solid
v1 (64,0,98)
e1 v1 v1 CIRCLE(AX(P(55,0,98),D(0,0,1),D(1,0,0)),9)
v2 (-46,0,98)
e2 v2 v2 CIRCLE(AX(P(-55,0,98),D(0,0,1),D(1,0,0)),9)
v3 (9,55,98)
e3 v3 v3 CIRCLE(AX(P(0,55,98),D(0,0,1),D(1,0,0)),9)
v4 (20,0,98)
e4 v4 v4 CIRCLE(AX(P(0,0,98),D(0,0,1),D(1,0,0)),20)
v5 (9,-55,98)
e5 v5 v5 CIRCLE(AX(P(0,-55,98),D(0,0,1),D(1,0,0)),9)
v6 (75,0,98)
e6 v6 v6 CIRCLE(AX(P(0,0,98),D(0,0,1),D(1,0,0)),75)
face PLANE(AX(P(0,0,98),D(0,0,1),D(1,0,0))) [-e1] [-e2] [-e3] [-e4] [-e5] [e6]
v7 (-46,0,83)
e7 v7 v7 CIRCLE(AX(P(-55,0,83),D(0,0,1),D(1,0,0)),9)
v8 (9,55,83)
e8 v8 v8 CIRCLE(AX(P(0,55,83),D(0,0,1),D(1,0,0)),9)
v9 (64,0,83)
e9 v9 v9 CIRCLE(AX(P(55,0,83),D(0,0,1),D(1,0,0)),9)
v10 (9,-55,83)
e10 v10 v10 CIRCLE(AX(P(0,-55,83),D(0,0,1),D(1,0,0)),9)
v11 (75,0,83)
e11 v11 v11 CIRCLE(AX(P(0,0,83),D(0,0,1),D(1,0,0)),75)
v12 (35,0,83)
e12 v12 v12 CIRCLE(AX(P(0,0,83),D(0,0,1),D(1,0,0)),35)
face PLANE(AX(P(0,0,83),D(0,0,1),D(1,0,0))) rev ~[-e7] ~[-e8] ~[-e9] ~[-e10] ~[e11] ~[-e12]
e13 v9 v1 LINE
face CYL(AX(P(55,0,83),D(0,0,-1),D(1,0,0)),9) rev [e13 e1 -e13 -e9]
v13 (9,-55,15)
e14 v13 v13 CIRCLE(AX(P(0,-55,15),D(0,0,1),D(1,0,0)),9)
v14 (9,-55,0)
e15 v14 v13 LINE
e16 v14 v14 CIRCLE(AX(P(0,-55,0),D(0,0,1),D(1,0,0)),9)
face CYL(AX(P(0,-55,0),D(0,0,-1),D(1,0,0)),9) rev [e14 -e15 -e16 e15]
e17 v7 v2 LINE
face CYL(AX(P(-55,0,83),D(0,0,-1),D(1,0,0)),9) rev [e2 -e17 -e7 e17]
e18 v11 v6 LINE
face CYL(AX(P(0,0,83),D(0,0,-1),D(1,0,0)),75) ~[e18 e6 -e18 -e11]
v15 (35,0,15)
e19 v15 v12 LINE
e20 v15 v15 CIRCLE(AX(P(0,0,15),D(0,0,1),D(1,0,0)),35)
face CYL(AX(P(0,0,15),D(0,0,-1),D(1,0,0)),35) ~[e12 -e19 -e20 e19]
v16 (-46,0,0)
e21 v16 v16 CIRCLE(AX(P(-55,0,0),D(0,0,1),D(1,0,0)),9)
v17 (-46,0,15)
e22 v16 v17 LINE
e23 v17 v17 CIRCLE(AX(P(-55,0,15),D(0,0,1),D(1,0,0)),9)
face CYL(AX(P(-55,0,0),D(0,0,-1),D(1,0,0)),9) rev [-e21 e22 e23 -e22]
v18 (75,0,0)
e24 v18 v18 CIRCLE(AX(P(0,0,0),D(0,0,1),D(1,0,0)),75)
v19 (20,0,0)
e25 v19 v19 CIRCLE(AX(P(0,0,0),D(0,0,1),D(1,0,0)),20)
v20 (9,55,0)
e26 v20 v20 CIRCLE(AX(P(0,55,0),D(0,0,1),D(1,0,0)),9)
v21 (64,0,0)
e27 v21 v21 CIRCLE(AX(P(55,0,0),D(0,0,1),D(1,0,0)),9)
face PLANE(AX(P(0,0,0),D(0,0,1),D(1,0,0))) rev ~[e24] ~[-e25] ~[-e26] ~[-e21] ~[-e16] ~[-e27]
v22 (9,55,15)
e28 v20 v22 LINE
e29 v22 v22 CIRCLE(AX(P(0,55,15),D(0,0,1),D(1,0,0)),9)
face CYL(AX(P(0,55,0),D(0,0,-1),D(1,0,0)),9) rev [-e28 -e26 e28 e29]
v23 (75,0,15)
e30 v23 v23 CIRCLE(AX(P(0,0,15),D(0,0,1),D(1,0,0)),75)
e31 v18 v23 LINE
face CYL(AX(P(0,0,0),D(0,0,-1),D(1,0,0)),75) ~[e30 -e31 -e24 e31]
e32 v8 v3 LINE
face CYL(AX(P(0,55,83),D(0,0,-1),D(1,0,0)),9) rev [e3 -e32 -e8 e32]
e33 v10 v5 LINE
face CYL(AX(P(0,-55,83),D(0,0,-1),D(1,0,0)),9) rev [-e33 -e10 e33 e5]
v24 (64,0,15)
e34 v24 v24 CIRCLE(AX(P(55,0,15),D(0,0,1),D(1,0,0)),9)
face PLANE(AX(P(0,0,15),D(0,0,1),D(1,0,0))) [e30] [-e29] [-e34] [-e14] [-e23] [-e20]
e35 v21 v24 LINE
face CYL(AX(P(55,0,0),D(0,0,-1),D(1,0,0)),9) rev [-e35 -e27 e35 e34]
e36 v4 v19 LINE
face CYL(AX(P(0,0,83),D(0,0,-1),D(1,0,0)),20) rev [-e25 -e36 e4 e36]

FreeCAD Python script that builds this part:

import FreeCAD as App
import Part
import Sketcher

V = App.Vector
Q = App.Units.Quantity

doc = App.newDocument("Part")
params = doc.addObject("Spreadsheet::Sheet", "Params")
for row, (alias, value) in enumerate([
    ("sketch1_diameter", "150 mm"),
    ("sketch1_diameter2", "18 mm"),
    ("sketch1_diameter3", "40 mm"),
    ("pad1_length", "15 mm"),
    ("sketch2_diameter", "70 mm"),
    ("sketch2_diameter2", "40 mm"),
    ("pad2_length", "68 mm"),
    ("sketch3_diameter", "150 mm"),
    ("sketch3_diameter2", "18 mm"),
    ("sketch3_diameter3", "40 mm"),
    ("pad3_length", "15 mm"),
], start=1):
    params.set(f"A{row}", alias)
    params.set(f"B{row}", "=" + value)
    params.setAlias(f"B{row}", alias)

body = doc.addObject("PartDesign::Body", "Body")

# Sketch on XY plane
sketch1 = doc.addObject("Sketcher::SketchObject", "Sketch")
body.addObject(sketch1)
sketch1.AttachmentSupport = (doc.XY_Plane, [""])
sketch1.MapMode = "FlatFace"
sketch1.addGeometry([
    Part.Circle(V(0, 0, 0), V(0, 0, 1), 75),  # 0
    Part.Circle(V(0, -55, 0), V(0, 0, 1), 9),  # 1
    Part.Circle(V(-55, 0, 0), V(0, 0, 1), 9),  # 2
    Part.Circle(V(0, 0, 0), V(0, 0, 1), 20),  # 3
    Part.Circle(V(55, 0, 0), V(0, 0, 1), 9),  # 4
    Part.Circle(V(0, 55, 0), V(0, 0, 1), 9),  # 5
], False)
sketch1.addConstraint([
    Sketcher.Constraint("Coincident", 0, 3, -1, 1),
    Sketcher.Constraint("Coincident", 3, 3, -1, 1),
    Sketcher.Constraint("Equal", 1, 2),
    Sketcher.Constraint("Equal", 2, 4),
    Sketcher.Constraint("Equal", 4, 5),
    Sketcher.Constraint("Symmetric", 2, 3, 4, 3, -1, 1),
    Sketcher.Constraint("Symmetric", 1, 3, 5, 3, -1, 1),
    Sketcher.Constraint("PointOnObject", 1, 3, -2),
    Sketcher.Constraint("PointOnObject", 2, 3, -1),
    Sketcher.Constraint("Diameter", 0, Q("150 mm")),
    Sketcher.Constraint("Diameter", 1, Q("18 mm")),
    Sketcher.Constraint("Diameter", 3, Q("40 mm")),
    Sketcher.Constraint("DistanceY", 1, 3, -1, 1, Q("55 mm")),
    Sketcher.Constraint("DistanceX", 2, 3, -1, 1, Q("55 mm")),
])
sketch1.setExpression("Constraints[9]", "Params.sketch1_diameter")
sketch1.setExpression("Constraints[10]", "Params.sketch1_diameter2")
sketch1.setExpression("Constraints[11]", "Params.sketch1_diameter3")
pad1 = doc.addObject("PartDesign::Pad", "Pad")
body.addObject(pad1)
pad1.Profile = sketch1
pad1.setExpression("Length", "Params.pad1_length")

# Sketch on XY plane
sketch2 = doc.addObject("Sketcher::SketchObject", "Sketch001")
body.addObject(sketch2)
sketch2.AttachmentSupport = (doc.XY_Plane, [""])
sketch2.MapMode = "FlatFace"
sketch2.AttachmentOffset = App.Placement(V(0, 0, 15), App.Rotation())
sketch2.addGeometry([
    Part.Circle(V(0, 0, 0), V(0, 0, 1), 35),
    Part.Circle(V(0, 0, 0), V(0, 0, 1), 20),
], False)
sketch2.addConstraint([
    Sketcher.Constraint("Coincident", 0, 3, -1, 1),
    Sketcher.Constraint("Coincident", 1, 3, -1, 1),
    Sketcher.Constraint("Diameter", 0, Q("70 mm")),
    Sketcher.Constraint("Diameter", 1, Q("40 mm")),
])
sketch2.setExpression("Constraints[2]", "Params.sketch2_diameter")
sketch2.setExpression("Constraints[3]", "Params.sketch2_diameter2")
pad2 = doc.addObject("PartDesign::Pad", "Pad001")
body.addObject(pad2)
pad2.Profile = sketch2
pad2.setExpression("Length", "Params.pad2_length")

# Sketch on XY plane
sketch3 = doc.addObject("Sketcher::SketchObject", "Sketch002")
body.addObject(sketch3)
sketch3.AttachmentSupport = (doc.XY_Plane, [""])
sketch3.MapMode = "FlatFace"
sketch3.AttachmentOffset = App.Placement(V(0, 0, 83), App.Rotation())
sketch3.addGeometry([
    Part.Circle(V(0, 0, 0), V(0, 0, 1), 75),  # 0
    Part.Circle(V(0, -55, 0), V(0, 0, 1), 9),  # 1
    Part.Circle(V(-55, 0, 0), V(0, 0, 1), 9),  # 2
    Part.Circle(V(0, 0, 0), V(0, 0, 1), 20),  # 3
    Part.Circle(V(55, 0, 0), V(0, 0, 1), 9),  # 4
    Part.Circle(V(0, 55, 0), V(0, 0, 1), 9),  # 5
], False)
sketch3.addConstraint([
    Sketcher.Constraint("Coincident", 0, 3, -1, 1),
    Sketcher.Constraint("Coincident", 3, 3, -1, 1),
    Sketcher.Constraint("Equal", 1, 2),
    Sketcher.Constraint("Equal", 2, 4),
    Sketcher.Constraint("Equal", 4, 5),
    Sketcher.Constraint("Symmetric", 2, 3, 4, 3, -1, 1),
    Sketcher.Constraint("Symmetric", 1, 3, 5, 3, -1, 1),
    Sketcher.Constraint("PointOnObject", 1, 3, -2),
    Sketcher.Constraint("PointOnObject", 2, 3, -1),
    Sketcher.Constraint("Diameter", 0, Q("150 mm")),
    Sketcher.Constraint("Diameter", 1, Q("18 mm")),
    Sketcher.Constraint("Diameter", 3, Q("40 mm")),
    Sketcher.Constraint("DistanceY", 1, 3, -1, 1, Q("55 mm")),
    Sketcher.Constraint("DistanceX", 2, 3, -1, 1, Q("55 mm")),
])
sketch3.setExpression("Constraints[9]", "Params.sketch3_diameter")
sketch3.setExpression("Constraints[10]", "Params.sketch3_diameter2")
sketch3.setExpression("Constraints[11]", "Params.sketch3_diameter3")
pad3 = doc.addObject("PartDesign::Pad", "Pad002")
body.addObject(pad3)
pad3.Profile = sketch3
pad3.setExpression("Length", "Params.pad3_length")

doc.recompute()
